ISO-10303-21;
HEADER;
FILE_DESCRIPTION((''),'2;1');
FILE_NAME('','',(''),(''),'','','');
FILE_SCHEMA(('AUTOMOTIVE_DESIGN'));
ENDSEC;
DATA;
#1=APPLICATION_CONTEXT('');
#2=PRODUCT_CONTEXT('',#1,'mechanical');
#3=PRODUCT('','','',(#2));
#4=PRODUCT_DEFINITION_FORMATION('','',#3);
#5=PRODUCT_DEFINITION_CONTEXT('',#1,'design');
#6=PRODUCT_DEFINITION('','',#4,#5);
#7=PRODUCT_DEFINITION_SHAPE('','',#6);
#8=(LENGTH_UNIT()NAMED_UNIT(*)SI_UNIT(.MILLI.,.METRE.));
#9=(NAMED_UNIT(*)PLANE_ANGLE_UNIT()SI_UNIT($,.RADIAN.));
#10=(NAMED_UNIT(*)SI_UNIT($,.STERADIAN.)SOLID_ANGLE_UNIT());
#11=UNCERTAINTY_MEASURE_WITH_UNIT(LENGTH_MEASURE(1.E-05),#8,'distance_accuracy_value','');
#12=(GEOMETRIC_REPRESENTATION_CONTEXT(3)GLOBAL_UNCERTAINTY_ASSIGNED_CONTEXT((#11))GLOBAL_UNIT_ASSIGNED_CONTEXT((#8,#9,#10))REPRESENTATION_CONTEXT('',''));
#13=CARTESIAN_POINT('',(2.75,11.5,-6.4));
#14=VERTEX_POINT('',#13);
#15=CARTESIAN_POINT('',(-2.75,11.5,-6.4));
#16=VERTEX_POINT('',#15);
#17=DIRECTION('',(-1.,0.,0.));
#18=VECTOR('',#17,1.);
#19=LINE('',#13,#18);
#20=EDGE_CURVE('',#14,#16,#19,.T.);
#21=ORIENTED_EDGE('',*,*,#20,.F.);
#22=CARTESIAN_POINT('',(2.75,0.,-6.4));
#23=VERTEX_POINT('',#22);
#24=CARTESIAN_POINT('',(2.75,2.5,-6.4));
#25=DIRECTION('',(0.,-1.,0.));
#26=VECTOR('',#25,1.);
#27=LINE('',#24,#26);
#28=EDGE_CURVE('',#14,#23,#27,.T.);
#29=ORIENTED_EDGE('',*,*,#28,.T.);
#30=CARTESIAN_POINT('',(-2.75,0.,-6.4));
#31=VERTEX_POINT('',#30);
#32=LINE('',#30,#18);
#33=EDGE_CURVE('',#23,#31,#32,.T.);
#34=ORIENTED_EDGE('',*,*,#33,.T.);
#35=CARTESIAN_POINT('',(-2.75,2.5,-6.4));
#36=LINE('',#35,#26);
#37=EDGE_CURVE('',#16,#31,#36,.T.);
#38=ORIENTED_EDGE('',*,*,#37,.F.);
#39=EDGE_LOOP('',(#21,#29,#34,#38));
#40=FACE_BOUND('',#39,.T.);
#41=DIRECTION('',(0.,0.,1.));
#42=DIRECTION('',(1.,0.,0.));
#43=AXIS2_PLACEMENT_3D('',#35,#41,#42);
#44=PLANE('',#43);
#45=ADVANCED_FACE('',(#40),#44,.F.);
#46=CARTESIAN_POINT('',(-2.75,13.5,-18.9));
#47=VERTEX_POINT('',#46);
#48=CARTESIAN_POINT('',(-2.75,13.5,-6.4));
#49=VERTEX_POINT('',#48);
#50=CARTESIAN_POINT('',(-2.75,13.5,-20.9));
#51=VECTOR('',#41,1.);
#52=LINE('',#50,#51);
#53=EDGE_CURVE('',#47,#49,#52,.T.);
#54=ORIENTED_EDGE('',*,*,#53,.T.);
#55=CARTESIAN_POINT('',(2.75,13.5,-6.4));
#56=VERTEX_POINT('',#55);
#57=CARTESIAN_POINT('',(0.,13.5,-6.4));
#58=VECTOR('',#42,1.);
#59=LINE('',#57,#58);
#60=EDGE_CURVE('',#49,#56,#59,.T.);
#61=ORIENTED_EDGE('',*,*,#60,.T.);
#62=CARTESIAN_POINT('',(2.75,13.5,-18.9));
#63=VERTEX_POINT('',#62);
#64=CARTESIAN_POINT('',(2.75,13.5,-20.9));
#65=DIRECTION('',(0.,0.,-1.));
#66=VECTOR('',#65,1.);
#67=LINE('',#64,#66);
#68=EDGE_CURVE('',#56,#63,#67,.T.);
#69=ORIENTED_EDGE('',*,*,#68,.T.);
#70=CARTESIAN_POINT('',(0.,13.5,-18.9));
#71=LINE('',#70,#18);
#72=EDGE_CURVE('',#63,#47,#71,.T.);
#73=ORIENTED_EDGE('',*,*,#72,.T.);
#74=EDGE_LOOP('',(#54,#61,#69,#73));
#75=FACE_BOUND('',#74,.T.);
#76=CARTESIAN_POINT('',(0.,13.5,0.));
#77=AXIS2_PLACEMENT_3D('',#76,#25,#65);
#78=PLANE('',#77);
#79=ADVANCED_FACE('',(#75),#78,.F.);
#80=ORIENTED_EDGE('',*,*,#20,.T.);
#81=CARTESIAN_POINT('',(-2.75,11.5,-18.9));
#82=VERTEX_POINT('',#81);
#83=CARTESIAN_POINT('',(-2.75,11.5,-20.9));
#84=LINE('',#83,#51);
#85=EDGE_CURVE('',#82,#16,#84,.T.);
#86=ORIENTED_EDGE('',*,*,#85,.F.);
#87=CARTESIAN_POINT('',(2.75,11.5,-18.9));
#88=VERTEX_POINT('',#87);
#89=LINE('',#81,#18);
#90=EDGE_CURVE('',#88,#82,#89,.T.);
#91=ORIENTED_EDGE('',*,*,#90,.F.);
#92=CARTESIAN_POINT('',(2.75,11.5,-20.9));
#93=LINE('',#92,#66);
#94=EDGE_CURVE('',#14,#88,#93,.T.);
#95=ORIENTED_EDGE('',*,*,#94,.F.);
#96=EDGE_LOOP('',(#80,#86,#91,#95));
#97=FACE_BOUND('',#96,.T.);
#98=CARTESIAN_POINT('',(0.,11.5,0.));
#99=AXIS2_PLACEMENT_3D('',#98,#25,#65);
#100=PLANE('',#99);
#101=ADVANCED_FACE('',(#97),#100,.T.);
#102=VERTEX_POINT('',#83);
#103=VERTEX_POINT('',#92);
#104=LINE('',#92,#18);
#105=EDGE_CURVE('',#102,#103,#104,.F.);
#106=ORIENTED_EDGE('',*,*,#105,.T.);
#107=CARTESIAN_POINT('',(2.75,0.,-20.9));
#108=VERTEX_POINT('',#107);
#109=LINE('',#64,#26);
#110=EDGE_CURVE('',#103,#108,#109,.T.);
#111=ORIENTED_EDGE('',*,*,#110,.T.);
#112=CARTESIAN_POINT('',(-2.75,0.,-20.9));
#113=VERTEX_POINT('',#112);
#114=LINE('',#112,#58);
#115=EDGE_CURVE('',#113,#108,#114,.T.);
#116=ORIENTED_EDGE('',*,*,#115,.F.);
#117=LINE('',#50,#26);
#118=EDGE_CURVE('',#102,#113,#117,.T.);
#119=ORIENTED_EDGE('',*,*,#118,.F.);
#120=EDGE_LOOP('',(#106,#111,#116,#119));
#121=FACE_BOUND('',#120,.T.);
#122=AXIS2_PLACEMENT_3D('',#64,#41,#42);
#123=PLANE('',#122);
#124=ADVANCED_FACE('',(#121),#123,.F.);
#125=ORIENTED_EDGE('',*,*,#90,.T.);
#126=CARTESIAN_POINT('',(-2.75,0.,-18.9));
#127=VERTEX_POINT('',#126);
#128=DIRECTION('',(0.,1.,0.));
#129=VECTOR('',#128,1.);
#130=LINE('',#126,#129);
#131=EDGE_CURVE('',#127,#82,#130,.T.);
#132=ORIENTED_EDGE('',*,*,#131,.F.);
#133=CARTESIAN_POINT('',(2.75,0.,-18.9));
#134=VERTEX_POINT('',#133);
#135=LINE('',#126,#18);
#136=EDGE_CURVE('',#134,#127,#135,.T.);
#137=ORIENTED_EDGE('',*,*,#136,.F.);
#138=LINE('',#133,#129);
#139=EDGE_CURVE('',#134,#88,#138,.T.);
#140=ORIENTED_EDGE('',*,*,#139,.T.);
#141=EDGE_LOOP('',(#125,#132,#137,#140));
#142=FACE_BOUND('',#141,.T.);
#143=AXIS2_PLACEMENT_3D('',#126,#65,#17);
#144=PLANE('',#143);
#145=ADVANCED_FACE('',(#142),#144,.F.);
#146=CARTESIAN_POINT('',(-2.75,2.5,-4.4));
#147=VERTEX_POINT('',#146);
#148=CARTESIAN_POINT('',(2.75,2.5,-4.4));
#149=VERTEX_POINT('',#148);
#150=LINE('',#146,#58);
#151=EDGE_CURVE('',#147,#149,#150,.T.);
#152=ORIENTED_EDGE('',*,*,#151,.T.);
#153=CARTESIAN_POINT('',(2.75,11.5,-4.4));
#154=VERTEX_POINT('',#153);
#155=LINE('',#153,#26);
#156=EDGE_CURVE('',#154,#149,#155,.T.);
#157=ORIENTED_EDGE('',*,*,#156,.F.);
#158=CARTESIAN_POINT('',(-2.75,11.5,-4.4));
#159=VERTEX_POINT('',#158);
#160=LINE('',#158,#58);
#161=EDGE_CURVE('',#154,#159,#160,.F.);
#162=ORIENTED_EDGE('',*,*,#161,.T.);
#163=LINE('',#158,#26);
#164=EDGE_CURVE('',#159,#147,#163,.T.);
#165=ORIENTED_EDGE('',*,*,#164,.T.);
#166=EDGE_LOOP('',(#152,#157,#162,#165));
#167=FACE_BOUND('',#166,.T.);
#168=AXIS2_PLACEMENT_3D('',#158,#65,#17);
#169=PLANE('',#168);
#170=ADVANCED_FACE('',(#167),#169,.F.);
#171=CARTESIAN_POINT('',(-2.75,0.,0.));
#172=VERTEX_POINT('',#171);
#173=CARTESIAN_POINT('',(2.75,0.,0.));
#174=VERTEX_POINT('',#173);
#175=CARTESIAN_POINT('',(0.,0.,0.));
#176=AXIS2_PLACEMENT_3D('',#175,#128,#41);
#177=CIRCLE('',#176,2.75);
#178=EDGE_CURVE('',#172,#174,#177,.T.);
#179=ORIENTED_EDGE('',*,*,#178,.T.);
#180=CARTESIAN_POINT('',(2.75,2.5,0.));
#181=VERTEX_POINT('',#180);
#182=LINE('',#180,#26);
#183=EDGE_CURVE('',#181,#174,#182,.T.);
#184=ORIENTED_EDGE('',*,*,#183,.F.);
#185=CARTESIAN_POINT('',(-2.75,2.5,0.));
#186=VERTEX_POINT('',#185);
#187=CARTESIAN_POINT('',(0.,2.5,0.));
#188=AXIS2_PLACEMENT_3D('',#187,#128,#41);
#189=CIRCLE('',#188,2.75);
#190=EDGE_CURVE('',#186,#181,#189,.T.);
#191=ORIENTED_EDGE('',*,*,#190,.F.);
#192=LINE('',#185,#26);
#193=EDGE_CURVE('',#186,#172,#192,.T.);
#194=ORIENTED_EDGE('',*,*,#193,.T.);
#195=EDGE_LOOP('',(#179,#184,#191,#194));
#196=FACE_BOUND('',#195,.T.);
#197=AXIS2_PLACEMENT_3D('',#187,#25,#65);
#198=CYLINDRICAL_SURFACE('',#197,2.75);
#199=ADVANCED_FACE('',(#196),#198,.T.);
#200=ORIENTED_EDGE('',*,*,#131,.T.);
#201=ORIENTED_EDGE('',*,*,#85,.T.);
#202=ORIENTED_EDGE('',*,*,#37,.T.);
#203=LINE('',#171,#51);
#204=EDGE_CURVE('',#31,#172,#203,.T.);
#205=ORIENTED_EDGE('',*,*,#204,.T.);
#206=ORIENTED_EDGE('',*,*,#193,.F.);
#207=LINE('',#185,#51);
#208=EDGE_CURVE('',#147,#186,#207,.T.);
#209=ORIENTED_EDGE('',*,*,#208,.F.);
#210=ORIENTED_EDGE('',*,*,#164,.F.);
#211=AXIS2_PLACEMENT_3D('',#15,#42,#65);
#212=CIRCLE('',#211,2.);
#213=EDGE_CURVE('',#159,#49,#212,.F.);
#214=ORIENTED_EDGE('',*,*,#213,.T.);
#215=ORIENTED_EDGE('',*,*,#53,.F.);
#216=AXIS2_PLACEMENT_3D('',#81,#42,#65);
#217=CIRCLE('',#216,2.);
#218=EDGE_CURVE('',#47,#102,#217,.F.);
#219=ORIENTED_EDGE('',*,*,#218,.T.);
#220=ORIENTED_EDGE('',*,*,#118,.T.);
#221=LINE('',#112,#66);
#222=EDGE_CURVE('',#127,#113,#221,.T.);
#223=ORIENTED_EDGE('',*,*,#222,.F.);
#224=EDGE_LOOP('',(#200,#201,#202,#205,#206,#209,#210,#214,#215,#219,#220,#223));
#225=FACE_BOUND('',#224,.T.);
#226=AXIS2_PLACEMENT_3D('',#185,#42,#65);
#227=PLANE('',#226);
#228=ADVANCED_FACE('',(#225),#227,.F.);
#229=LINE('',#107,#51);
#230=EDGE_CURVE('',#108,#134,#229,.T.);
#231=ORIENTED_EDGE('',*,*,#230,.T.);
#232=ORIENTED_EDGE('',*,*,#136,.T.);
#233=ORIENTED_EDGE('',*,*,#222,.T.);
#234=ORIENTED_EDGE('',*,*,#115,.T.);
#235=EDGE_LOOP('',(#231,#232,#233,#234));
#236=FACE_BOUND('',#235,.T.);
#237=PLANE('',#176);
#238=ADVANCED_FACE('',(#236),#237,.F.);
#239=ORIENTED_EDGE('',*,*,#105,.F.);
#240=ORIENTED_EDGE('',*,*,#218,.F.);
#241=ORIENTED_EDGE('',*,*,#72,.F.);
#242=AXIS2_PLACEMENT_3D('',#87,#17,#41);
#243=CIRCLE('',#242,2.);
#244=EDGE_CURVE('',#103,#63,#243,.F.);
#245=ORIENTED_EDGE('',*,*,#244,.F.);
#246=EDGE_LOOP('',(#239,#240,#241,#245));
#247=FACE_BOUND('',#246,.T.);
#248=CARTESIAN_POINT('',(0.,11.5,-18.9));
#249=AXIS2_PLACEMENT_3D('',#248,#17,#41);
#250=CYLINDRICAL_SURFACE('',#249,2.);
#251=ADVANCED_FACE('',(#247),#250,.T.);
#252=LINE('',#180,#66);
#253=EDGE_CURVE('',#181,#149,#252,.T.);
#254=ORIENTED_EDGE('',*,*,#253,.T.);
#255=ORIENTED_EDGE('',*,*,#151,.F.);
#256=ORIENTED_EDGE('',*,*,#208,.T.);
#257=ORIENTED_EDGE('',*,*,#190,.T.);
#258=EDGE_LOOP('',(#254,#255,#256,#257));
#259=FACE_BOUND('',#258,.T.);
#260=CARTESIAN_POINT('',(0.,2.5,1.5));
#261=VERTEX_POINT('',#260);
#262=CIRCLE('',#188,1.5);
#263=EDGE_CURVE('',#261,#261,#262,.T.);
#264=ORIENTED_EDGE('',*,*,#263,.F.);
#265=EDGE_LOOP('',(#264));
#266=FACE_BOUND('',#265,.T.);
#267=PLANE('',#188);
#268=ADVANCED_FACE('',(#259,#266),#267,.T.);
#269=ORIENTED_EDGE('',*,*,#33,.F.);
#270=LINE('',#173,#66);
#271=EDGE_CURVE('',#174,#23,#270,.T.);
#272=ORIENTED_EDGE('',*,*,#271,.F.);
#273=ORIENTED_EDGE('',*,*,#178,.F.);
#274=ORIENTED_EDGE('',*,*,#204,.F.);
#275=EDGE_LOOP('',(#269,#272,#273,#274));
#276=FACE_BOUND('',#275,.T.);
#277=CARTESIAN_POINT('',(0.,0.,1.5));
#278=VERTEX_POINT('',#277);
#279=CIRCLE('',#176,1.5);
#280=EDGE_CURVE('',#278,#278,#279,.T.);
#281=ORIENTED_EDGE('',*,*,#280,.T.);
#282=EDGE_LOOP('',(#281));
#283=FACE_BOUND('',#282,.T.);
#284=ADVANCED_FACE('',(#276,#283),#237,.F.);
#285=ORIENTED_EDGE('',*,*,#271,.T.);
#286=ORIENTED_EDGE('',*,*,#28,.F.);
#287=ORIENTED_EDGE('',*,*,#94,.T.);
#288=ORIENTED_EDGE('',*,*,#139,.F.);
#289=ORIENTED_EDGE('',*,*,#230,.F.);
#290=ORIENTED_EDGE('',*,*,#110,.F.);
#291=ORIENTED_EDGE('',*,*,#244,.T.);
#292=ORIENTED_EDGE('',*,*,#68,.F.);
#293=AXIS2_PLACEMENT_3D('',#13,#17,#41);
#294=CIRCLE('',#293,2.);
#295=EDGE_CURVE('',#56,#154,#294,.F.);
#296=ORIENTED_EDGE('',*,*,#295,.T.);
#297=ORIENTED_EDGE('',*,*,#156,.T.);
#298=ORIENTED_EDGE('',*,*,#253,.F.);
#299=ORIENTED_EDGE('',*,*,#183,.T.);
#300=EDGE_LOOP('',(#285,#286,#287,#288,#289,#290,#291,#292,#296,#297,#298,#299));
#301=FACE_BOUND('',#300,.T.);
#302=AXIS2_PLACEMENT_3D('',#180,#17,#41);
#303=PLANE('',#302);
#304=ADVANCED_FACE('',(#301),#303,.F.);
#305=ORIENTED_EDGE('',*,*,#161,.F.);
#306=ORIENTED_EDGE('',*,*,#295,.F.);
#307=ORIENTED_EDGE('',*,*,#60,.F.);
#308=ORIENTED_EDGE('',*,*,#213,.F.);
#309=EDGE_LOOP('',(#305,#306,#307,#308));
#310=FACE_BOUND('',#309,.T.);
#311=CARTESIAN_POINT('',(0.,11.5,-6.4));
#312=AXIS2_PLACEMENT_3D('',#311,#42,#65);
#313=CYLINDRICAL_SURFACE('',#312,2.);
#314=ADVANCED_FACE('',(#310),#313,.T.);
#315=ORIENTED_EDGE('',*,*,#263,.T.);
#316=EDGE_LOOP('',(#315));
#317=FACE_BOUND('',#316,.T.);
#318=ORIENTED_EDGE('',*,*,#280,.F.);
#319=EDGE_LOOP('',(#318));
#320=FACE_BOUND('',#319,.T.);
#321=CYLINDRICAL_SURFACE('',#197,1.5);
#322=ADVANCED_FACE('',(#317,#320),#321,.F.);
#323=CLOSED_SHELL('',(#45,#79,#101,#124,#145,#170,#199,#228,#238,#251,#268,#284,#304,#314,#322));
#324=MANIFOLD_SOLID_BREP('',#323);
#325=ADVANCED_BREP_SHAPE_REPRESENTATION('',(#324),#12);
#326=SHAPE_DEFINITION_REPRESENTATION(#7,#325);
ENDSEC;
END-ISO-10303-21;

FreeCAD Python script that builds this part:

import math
import FreeCAD as App
import Part
import Sketcher
from FreeCAD import Vector


def edges_at(feature, points):
    """Names of the edges that pass closest to the given points."""
    edges = feature.Shape.Edges
    near = lambda p: min(range(len(edges)), key=lambda i: edges[i].distToShape(Part.Vertex(*p))[0])
    return sorted({f"Edge{near(p) + 1}" for p in points})


def add_polygon(sketch, points):
    """Adds a closed chain of lines whose ends are joined by coincident constraints."""
    first, n = sketch.GeometryCount, len(points)
    for a, b in zip(points, points[1:] + points[:1]):
        sketch.addGeometry(Part.LineSegment(App.Vector(*a, 0), App.Vector(*b, 0)), False)
    for i in range(n):
        sketch.addConstraint(Sketcher.Constraint("Coincident", first + i, 2, first + (i + 1) % n, 1))

doc = App.newDocument("Part")
body = doc.addObject("PartDesign::Body", "Body")

# Sketch on XZ plane
sketch1 = body.newObject("Sketcher::SketchObject", "Sketch")
sketch1.AttachmentSupport = (doc.getObject("XZ_Plane"), [""])
sketch1.MapMode = "FlatFace"
sketch1.addGeometry([
    Part.LineSegment(Vector(-2.8, -6.4, 0), Vector(-2.8, 0, 0)),  # 0
    Part.ArcOfCircle(Part.Circle(Vector(0, 0, 0), Vector(0, 0, 1), 2.8), math.radians(0), math.radians(180)),  # 1
    Part.LineSegment(Vector(2.8, 0, 0), Vector(2.8, -6.4, 0)),  # 2
    Part.LineSegment(Vector(2.8, -6.4, 0), Vector(-2.8, -6.4, 0)),  # 3
    Part.Circle(Vector(0, 0, 0), Vector(0, 0, 1), 1.5),  # 4
], False)
sketch1.addConstraint([
    Sketcher.Constraint("Tangent", 0, 2, 1, 2),
    Sketcher.Constraint("Tangent", 1, 1, 2, 1),
    Sketcher.Constraint("Coincident", 2, 2, 3, 1),
    Sketcher.Constraint("Coincident", 3, 2, 0, 1),
    Sketcher.Constraint("Vertical", 0),
    Sketcher.Constraint("Vertical", 2),
    Sketcher.Constraint("Horizontal", 3),
    Sketcher.Constraint("Coincident", 1, 3, -1, 1),
    Sketcher.Constraint("Coincident", 4, 3, -1, 1),
    Sketcher.Constraint("Diameter", 4, 3.0),
    Sketcher.Constraint("Radius", 1, 2.75),
    Sketcher.Constraint("DistanceY", 0, 1, 0, 2, 6.4),
])
pad1 = body.newObject("PartDesign::Pad", "Pad")
pad1.Profile = sketch1
pad1.Length = 2.5
pad1.Reversed = True

# Sketch on XZ plane
sketch2 = body.newObject("Sketcher::SketchObject", "Sketch001")
sketch2.AttachmentSupport = (doc.getObject("XZ_Plane"), [""])
sketch2.MapMode = "FlatFace"
sketch2.AttachmentOffset = App.Placement(Vector(0, 0, -2.5), App.Rotation())
add_polygon(sketch2, [(-2.8, -6.4), (-2.8, -4.4), (2.8, -4.4), (2.8, -6.4)])  # lines 0-3
sketch2.addConstraint([
    Sketcher.Constraint("Vertical", 0),
    Sketcher.Constraint("Horizontal", 1),
    Sketcher.Constraint("Vertical", 2),
    Sketcher.Constraint("Horizontal", 3),
    Sketcher.Constraint("DistanceY", 0, 1, 0, 2, 2.0),
    Sketcher.Constraint("DistanceX", 1, 1, 1, 2, 5.5),
    Sketcher.Constraint("DistanceY", 0, 2, -1, 1, 4.4),
    Sketcher.Constraint("DistanceX", 0, 2, -1, 1, 2.75),
])
pad2 = body.newObject("PartDesign::Pad", "Pad001")
pad2.Profile = sketch2
pad2.Length = 9
pad2.Reversed = True

# Sketch on XZ plane
sketch3 = body.newObject("Sketcher::SketchObject", "Sketch002")
sketch3.AttachmentSupport = (doc.getObject("XZ_Plane"), [""])
sketch3.MapMode = "FlatFace"
sketch3.AttachmentOffset = App.Placement(Vector(0, 0, -11.5), App.Rotation())
add_polygon(sketch3, [(-3, -21), (-3, -4), (3, -4), (3, -21)])  # lines 0-3
sketch3.addConstraint([
    Sketcher.Constraint("Vertical", 0),
    Sketcher.Constraint("Horizontal", 1),
    Sketcher.Constraint("Vertical", 2),
    Sketcher.Constraint("Horizontal", 3),
    Sketcher.Constraint("DistanceX", 1, 1, 1, 2, 5.5),
    Sketcher.Constraint("DistanceY", 0, 1, 0, 2, 16.5),
    Sketcher.Constraint("DistanceY", 0, 2, -1, 1, 4.4),
    Sketcher.Constraint("DistanceX", 0, 2, -1, 1, 2.75),
])
pad3 = body.newObject("PartDesign::Pad", "Pad002")
pad3.Profile = sketch3
pad3.Length = 2
pad3.Reversed = True

# Sketch on XZ plane
sketch4 = body.newObject("Sketcher::SketchObject", "Sketch003")
sketch4.AttachmentSupport = (doc.getObject("XZ_Plane"), [""])
sketch4.MapMode = "FlatFace"
sketch4.AttachmentOffset = App.Placement(Vector(0, 0, -11.5), App.Rotation())
add_polygon(sketch4, [(-2.8, -18.9), (-2.8, -20.9), (2.8, -20.9), (2.8, -18.9)])  # lines 0-3
sketch4.addConstraint([
    Sketcher.Constraint("Vertical", 0),
    Sketcher.Constraint("Horizontal", 1),
    Sketcher.Constraint("Vertical", 2),
    Sketcher.Constraint("Horizontal", 3),
    Sketcher.Constraint("DistanceY", 0, 2, 0, 1, 2.0),
    Sketcher.Constraint("DistanceX", 1, 1, 1, 2, 5.5),
    Sketcher.Constraint("DistanceY", 0, 2, -1, 1, 20.9),
    Sketcher.Constraint("DistanceX", 0, 2, -1, 1, 2.75),
])
pad4 = body.newObject("PartDesign::Pad", "Pad003")
pad4.Profile = sketch4
pad4.Length = 11.5
doc.recompute()

fillet = body.newObject("PartDesign::Fillet", "Fillet")
fillet.Base = (pad4, edges_at(pad4, [(0, 13.5, -4.4), (0, 13.5, -20.9)]))
fillet.Radius = 2

doc.recompute()
